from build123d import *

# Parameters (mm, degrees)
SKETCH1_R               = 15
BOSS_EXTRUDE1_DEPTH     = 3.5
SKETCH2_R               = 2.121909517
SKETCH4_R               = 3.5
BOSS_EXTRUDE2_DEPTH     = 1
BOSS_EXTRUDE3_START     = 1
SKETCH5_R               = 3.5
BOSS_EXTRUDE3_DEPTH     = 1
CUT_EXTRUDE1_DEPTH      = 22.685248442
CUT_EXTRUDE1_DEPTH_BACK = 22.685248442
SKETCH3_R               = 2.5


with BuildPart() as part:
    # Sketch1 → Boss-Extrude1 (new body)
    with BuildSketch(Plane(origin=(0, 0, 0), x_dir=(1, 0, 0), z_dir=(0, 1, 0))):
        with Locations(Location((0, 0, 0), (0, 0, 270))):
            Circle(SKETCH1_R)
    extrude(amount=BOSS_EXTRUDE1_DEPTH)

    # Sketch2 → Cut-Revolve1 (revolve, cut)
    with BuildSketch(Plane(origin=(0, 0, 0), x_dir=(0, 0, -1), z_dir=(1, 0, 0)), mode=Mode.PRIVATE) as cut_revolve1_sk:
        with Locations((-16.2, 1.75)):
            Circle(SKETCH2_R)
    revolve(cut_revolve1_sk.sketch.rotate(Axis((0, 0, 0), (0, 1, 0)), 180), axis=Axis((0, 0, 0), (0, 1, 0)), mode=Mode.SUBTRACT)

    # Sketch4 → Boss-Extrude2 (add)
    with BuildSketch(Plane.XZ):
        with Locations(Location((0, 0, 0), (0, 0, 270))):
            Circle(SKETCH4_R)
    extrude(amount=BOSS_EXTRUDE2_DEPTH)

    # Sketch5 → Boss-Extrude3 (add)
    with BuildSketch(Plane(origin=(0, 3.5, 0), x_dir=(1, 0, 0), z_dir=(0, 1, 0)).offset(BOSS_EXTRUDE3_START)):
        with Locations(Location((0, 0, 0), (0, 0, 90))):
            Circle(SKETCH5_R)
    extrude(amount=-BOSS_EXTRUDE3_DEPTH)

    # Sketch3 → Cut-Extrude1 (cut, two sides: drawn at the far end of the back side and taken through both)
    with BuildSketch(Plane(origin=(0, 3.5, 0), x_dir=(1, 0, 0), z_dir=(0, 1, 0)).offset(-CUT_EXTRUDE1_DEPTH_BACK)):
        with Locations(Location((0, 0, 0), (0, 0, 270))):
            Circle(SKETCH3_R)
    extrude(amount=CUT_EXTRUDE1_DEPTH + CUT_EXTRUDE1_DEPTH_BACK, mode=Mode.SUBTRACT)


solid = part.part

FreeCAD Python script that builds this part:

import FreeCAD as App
import Part
import Sketcher
from FreeCAD import Vector

doc = App.newDocument("Part")
body = doc.addObject("PartDesign::Body", "Body")

sketch1 = body.newObject("Sketcher::SketchObject", "Sketch")
sketch1.AttachmentSupport = (doc.getObject("XZ_Plane"), [""])
sketch1.MapMode = "FlatFace"
sketch1.addGeometry(Part.Circle(Vector(0, 0, 0), Vector(0, 0, 1), 15), False)
sketch1.addConstraint(Sketcher.Constraint("Coincident", 0, 3, -1, 1))
sketch1.addConstraint(Sketcher.Constraint("Diameter", 0, 30.0))
pad1 = body.newObject("PartDesign::Pad", "Pad")
pad1.Profile = sketch1
pad1.Length = 3.5
pad1.Reversed = True

sketch2 = body.newObject("Sketcher::SketchObject", "Sketch001")
sketch2.AttachmentSupport = (doc.getObject("YZ_Plane"), [""])
sketch2.MapMode = "FlatFace"
sketch2.addGeometry(Part.Circle(Vector(1.8, 16.2, 0), Vector(0, 0, 1), 2.1), False)
sketch2.addConstraint(Sketcher.Constraint("DistanceY", -1, 1, 0, 3, 16.2))
sketch2.addConstraint(Sketcher.Constraint("Diameter", 0, 4.243819))
sketch2.addConstraint(Sketcher.Constraint("DistanceX", -1, 1, 0, 3, 1.75))
groove = body.newObject("PartDesign::Groove", "Groove")
groove.Profile = sketch2
groove.ReferenceAxis = (sketch2, ["H_Axis"])
groove.Angle = 360

sketch3 = body.newObject("Sketcher::SketchObject", "Sketch002")
sketch3.AttachmentSupport = (doc.getObject("XZ_Plane"), [""])
sketch3.MapMode = "FlatFace"
sketch3.addGeometry(Part.Circle(Vector(0, 0, 0), Vector(0, 0, 1), 3.5), False)
sketch3.addConstraint(Sketcher.Constraint("Coincident", 0, 3, -1, 1))
sketch3.addConstraint(Sketcher.Constraint("Diameter", 0, 7.0))
pad2 = body.newObject("PartDesign::Pad", "Pad001")
pad2.Profile = sketch3
pad2.Length = 1

sketch4 = body.newObject("Sketcher::SketchObject", "Sketch003")
sketch4.AttachmentSupport = (doc.getObject("XZ_Plane"), [""])
sketch4.MapMode = "FlatFace"
sketch4.AttachmentOffset = App.Placement(Vector(0, 0, -4.5), App.Rotation())
sketch4.addGeometry(Part.Circle(Vector(0, 0, 0), Vector(0, 0, 1), 3.5), False)
sketch4.addConstraint(Sketcher.Constraint("Coincident", 0, 3, -1, 1))
sketch4.addConstraint(Sketcher.Constraint("Diameter", 0, 7.0))
pad3 = body.newObject("PartDesign::Pad", "Pad002")
pad3.Profile = sketch4
pad3.Length = 1

sketch5 = body.newObject("Sketcher::SketchObject", "Sketch004")
sketch5.AttachmentSupport = (doc.getObject("XZ_Plane"), [""])
sketch5.MapMode = "FlatFace"
sketch5.AttachmentOffset = App.Placement(Vector(0, 0, -3.5), App.Rotation())
sketch5.addGeometry(Part.Circle(Vector(0, 0, 0), Vector(0, 0, 1), 2.5), False)
sketch5.addConstraint(Sketcher.Constraint("Coincident", 0, 3, -1, 1))
sketch5.addConstraint(Sketcher.Constraint("Diameter", 0, 5.0))
pocket1 = body.newObject("PartDesign::Pocket", "Pocket")
pocket1.Profile = sketch5
pocket1.Type = "ThroughAll"
pocket1.Midplane = True

doc.recompute()
